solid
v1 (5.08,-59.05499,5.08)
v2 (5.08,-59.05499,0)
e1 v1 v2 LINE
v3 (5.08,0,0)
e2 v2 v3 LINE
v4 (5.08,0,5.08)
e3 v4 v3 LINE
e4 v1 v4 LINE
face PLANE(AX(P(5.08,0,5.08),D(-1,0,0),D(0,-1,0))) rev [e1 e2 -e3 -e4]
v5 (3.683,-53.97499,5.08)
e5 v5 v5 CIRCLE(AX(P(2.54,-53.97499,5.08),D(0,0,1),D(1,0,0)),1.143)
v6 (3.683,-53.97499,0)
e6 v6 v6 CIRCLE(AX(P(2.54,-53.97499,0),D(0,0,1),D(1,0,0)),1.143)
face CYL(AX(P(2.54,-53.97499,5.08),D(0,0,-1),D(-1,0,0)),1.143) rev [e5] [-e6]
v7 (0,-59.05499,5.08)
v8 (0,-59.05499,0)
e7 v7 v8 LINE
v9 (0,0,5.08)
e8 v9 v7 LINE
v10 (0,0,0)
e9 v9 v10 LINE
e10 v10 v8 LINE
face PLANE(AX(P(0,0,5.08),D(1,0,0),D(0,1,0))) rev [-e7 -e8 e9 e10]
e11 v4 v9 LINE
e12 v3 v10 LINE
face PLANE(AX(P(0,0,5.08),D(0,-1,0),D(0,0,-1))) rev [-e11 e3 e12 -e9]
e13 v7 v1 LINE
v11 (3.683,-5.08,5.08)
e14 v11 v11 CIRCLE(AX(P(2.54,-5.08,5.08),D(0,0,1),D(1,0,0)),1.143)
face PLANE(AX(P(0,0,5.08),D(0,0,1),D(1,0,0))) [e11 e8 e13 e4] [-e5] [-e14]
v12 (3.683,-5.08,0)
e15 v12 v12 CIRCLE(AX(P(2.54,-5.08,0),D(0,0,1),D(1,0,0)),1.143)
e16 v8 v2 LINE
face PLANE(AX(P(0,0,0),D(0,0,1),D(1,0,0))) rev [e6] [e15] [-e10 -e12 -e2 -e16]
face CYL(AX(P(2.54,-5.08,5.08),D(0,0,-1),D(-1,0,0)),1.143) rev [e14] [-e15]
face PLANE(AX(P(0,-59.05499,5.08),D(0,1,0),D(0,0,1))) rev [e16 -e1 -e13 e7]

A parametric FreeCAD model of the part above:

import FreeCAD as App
import Part
import Sketcher

V = App.Vector
Q = App.Units.Quantity

doc = App.newDocument("Part")
body = doc.addObject("PartDesign::Body", "Body")

sketch1 = body.newObject("Sketcher::SketchObject", "Sketch")
sketch1.AttachmentSupport = (doc.getObject("XY_Plane"), [""])
sketch1.MapMode = "FlatFace"
sketch1.addGeometry([
    Part.LineSegment(V(0, 0, 0), V(0, -59.1, 0)),
    Part.LineSegment(V(0, -59.1, 0), V(5.1, -59.1, 0)),
    Part.LineSegment(V(5.1, -59.1, 0), V(5.1, 0, 0)),
    Part.LineSegment(V(5.1, 0, 0), V(0, 0, 0)),
    Part.Circle(V(2.5, -54, 0), V(0, 0, 1), 1.1),
    Part.Circle(V(2.5, -5.1, 0), V(0, 0, 1), 1.1),
], False)
sketch1.addConstraint([
    Sketcher.Constraint("Coincident", 0, 2, 1, 1),
    Sketcher.Constraint("Coincident", 1, 2, 2, 1),
    Sketcher.Constraint("Coincident", 2, 2, 3, 1),
    Sketcher.Constraint("Coincident", 3, 2, 0, 1),
    Sketcher.Constraint("Vertical", 0),
    Sketcher.Constraint("Horizontal", 1),
    Sketcher.Constraint("Vertical", 2),
    Sketcher.Constraint("Horizontal", 3),
    Sketcher.Constraint("Coincident", 3, 2, -1, 1),
    Sketcher.Constraint("Equal", 4, 5),
    Sketcher.Constraint("Vertical", 4, 3, 5, 3),
    Sketcher.Constraint("Diameter", 4, Q("0.09 in")),
    Sketcher.Constraint("DistanceX", 1, 1, 1, 2, Q("0.2 in")),
    Sketcher.Constraint("DistanceX", -1, 1, 4, 3, Q("0.1 in")),
    Sketcher.Constraint("DistanceY", 5, 3, -1, 1, Q("0.2 in")),
    Sketcher.Constraint("DistanceY", 0, 2, 4, 3, Q("0.2 in")),
    Sketcher.Constraint("DistanceY", 0, 2, 0, 1, Q("59.05499 mm")),
])
pad1 = body.newObject("PartDesign::Pad", "Pad")
pad1.Profile = sketch1
pad1.Length = Q("0.2 in")

doc.recompute()
